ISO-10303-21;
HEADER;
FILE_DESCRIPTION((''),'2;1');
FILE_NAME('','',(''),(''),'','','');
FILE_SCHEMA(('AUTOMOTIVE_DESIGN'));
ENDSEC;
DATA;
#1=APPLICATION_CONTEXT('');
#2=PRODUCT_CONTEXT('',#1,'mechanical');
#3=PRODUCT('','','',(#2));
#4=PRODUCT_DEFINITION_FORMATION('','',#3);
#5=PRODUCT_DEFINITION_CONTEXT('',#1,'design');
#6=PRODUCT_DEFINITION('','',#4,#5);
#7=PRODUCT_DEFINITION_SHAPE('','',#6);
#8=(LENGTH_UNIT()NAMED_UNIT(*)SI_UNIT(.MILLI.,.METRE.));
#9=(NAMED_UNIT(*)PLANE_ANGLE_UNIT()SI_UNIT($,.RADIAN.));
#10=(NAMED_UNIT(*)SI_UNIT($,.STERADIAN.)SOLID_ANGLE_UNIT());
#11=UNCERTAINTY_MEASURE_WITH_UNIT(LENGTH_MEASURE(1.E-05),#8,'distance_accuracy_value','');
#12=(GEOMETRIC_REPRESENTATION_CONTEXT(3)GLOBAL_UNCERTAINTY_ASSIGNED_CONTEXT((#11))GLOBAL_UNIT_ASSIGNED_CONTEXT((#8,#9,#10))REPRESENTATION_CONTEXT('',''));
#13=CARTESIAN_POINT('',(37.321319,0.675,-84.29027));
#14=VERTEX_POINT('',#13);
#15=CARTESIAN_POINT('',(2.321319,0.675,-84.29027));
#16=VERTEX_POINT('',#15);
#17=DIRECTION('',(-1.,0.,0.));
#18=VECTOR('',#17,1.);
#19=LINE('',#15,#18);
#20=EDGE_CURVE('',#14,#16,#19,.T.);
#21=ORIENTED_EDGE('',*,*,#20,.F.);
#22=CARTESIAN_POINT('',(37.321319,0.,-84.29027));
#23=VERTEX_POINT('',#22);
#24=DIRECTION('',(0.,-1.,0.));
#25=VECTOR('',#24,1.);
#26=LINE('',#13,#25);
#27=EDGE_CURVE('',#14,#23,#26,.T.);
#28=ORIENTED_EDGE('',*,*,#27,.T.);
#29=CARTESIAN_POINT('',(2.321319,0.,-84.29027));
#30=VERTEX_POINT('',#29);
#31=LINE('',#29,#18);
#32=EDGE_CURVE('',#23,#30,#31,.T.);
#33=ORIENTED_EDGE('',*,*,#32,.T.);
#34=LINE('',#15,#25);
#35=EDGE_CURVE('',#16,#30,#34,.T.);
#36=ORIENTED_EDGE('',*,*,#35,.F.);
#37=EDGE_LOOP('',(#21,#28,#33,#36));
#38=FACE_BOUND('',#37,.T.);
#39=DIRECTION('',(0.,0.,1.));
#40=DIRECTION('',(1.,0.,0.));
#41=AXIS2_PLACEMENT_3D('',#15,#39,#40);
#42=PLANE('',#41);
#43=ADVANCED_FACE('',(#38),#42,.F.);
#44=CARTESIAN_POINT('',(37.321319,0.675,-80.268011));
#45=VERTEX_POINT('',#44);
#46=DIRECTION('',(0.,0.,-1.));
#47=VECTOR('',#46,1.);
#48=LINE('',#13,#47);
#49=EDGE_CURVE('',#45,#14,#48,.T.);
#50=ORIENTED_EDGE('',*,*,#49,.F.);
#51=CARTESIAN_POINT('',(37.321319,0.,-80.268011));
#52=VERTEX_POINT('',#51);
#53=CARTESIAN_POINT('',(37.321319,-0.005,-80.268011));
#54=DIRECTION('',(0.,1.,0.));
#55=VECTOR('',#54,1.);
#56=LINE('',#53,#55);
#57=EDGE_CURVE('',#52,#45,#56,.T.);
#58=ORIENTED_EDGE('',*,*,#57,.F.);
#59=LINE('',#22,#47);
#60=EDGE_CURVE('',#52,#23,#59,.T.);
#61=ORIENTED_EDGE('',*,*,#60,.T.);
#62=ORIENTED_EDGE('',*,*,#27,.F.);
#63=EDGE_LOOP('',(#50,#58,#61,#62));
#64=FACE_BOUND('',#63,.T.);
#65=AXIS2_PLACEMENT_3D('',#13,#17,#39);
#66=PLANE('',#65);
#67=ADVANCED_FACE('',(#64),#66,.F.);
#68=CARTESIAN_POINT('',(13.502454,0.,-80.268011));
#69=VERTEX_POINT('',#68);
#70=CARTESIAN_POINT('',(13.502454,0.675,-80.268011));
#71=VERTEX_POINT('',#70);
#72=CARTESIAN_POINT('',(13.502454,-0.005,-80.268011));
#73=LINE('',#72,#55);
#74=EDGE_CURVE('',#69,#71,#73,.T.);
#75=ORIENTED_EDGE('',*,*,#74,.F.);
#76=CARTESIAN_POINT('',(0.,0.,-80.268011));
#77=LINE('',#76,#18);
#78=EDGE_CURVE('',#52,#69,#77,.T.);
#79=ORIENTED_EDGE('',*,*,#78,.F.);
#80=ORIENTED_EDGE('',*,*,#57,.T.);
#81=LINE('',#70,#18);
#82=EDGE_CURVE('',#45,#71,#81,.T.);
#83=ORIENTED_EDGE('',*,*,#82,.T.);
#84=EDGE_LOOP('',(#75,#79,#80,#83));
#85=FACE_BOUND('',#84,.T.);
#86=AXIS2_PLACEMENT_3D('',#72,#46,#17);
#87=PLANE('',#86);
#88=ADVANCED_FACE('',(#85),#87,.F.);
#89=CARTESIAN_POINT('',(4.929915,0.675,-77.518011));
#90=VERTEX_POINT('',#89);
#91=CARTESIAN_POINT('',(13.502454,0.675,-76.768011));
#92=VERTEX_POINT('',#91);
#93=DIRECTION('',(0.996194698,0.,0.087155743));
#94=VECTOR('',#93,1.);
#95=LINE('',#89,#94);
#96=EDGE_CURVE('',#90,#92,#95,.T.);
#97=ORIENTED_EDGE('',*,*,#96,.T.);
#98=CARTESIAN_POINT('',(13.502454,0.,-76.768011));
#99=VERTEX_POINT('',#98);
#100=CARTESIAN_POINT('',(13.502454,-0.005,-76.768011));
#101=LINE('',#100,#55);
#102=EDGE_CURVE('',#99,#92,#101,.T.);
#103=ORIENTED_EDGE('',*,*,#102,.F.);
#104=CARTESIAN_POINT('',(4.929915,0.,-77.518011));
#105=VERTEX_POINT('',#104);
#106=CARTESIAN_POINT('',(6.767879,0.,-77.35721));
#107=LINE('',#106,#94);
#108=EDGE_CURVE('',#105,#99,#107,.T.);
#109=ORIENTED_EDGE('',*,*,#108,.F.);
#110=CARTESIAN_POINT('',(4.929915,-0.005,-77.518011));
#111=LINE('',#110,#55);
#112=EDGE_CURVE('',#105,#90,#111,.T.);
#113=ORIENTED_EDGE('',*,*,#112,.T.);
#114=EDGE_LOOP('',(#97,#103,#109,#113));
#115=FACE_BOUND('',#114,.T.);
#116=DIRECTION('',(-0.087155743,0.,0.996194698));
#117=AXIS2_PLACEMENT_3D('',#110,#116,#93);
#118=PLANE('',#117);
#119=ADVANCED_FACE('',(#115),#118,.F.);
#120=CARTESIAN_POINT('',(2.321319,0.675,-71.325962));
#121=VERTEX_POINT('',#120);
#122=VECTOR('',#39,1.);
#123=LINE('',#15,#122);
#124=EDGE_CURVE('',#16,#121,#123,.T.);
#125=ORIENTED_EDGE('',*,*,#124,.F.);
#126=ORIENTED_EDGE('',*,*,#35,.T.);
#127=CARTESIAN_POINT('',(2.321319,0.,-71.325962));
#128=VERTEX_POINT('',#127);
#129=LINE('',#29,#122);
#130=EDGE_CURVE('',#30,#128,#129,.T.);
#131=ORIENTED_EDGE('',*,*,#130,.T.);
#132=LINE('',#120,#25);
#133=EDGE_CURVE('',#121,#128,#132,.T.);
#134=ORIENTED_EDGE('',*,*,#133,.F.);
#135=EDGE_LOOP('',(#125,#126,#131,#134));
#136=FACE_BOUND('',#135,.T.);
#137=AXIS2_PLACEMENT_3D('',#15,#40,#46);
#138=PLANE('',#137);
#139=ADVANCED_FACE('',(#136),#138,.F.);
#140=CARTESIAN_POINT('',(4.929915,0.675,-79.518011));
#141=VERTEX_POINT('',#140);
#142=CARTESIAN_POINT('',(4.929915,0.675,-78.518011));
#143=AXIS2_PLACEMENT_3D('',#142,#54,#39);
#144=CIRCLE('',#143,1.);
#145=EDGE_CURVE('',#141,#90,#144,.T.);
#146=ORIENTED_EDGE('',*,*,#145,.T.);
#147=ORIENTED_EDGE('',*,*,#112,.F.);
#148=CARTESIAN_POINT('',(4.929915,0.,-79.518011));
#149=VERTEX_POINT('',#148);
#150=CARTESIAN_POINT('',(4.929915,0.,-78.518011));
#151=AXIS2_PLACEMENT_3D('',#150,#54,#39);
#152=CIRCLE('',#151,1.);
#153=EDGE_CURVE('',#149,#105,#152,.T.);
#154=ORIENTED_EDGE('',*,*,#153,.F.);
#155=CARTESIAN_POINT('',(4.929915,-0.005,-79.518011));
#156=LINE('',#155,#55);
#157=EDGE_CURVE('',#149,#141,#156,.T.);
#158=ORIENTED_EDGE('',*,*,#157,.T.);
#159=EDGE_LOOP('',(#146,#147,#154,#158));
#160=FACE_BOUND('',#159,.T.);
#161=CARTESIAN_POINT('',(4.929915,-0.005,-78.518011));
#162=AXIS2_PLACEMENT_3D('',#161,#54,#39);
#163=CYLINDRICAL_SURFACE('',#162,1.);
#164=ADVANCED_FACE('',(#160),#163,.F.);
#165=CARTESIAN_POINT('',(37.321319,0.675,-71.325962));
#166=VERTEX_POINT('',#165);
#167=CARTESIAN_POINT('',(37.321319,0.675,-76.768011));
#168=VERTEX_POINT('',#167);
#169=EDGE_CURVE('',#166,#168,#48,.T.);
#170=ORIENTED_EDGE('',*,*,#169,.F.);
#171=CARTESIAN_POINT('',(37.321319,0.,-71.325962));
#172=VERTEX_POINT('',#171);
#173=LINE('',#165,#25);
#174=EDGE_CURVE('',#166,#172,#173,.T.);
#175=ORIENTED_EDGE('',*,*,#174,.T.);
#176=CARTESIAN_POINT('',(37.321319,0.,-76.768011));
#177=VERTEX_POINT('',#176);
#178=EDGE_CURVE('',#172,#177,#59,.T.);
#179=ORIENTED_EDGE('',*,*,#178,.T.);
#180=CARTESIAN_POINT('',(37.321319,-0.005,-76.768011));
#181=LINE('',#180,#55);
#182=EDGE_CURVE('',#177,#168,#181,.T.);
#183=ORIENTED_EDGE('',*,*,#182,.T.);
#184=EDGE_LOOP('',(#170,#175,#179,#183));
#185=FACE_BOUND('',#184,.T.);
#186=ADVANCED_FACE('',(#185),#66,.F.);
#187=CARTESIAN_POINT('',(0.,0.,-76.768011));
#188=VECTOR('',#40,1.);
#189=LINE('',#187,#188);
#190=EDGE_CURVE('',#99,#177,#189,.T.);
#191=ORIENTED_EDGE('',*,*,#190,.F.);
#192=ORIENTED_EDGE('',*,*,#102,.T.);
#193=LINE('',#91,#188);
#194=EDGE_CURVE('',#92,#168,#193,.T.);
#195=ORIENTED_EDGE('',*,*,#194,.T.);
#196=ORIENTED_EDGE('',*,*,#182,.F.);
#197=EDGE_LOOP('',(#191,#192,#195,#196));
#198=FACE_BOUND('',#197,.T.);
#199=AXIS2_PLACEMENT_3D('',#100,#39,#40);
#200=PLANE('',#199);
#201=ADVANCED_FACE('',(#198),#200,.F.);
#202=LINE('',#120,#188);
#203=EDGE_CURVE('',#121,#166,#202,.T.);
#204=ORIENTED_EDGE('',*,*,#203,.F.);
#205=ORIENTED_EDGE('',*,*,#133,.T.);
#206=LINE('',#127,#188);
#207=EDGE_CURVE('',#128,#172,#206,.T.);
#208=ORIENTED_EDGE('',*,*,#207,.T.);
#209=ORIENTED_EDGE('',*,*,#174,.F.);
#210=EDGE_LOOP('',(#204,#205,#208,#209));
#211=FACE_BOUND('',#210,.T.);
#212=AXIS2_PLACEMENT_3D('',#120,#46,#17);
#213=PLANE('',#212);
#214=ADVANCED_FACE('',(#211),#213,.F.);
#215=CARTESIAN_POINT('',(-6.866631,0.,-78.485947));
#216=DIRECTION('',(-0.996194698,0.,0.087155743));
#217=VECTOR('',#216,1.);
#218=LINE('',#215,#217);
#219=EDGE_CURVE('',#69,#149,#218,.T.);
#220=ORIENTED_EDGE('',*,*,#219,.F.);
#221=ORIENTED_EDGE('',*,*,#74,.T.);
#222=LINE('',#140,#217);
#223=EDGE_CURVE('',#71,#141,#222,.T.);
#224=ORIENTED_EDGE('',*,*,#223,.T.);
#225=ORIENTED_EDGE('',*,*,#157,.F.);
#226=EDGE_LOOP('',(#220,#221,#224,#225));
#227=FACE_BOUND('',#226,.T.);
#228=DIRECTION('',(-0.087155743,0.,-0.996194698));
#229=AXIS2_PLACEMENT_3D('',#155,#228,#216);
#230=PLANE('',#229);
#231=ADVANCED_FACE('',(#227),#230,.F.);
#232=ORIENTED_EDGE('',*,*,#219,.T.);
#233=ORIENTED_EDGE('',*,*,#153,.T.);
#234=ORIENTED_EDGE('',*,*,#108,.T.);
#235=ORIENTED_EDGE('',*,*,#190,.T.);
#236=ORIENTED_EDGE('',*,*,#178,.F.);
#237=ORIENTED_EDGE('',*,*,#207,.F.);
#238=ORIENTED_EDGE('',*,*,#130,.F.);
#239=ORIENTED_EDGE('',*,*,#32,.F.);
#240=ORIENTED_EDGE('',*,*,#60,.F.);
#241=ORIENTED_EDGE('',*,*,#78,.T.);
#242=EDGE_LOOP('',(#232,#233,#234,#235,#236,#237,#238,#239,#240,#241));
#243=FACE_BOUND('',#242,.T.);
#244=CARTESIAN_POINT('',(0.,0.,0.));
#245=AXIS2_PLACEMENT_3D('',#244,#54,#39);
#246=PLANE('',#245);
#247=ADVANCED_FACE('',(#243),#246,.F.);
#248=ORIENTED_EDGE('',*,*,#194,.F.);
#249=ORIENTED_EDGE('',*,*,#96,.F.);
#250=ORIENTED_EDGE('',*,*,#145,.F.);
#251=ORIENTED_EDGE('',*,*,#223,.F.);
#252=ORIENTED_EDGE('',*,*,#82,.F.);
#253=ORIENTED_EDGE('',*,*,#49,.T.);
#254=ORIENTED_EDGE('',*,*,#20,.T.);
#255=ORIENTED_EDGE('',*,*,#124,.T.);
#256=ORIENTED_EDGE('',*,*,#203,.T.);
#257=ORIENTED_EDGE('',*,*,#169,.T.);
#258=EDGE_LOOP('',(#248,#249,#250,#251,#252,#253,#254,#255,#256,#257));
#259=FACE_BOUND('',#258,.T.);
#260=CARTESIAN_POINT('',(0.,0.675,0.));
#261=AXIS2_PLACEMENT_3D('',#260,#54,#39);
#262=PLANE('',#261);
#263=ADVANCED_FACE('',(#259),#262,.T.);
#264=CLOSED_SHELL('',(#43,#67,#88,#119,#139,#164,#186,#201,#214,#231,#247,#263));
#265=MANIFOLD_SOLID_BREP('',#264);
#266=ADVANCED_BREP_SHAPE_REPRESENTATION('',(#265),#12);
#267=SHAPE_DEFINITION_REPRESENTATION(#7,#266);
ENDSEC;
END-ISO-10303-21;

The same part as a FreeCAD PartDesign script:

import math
import FreeCAD as App
import Part
import Sketcher
Q = App.Units.Quantity


def add_polygon(sketch, points):
    """Adds a closed chain of lines whose ends are joined by coincident constraints."""
    first, n = sketch.GeometryCount, len(points)
    for a, b in zip(points, points[1:] + points[:1]):
        sketch.addGeometry(Part.LineSegment(App.Vector(*a, 0), App.Vector(*b, 0)), False)
    for i in range(n):
        sketch.addConstraint(Sketcher.Constraint("Coincident", first + i, 2, first + (i + 1) % n, 1))

doc = App.newDocument("Part")
body = doc.addObject("PartDesign::Body", "Body")

sketch1 = doc.addObject("Sketcher::SketchObject", "Sketch")
body.addObject(sketch1)
sketch1.AttachmentSupport = (doc.XZ_Plane, [""])
sketch1.MapMode = "FlatFace"
add_polygon(sketch1, [(2.321319, -84.29027), (2.321319, -71.325962), (37.321319, -71.325962), (37.321319, -84.29027)])
sketch1.addConstraint(Sketcher.Constraint("Vertical", 0))
sketch1.addConstraint(Sketcher.Constraint("Horizontal", 1))
sketch1.addConstraint(Sketcher.Constraint("Vertical", 2))
sketch1.addConstraint(Sketcher.Constraint("Horizontal", 3))
sketch1.addConstraint(Sketcher.Constraint("DistanceX", 1, 1, 1, 2, Q("35 mm")))
sketch1.addConstraint(Sketcher.Constraint("DistanceY", 0, 1, 0, 2, Q("12.964308 mm")))
sketch1.addConstraint(Sketcher.Constraint("DistanceX", -1, 1, 0, 2, Q("2.321319 mm")))
sketch1.addConstraint(Sketcher.Constraint("DistanceY", 2, 2, -1, 1, Q("84.29027 mm")))
pad1 = doc.addObject("PartDesign::Pad", "Pad")
body.addObject(pad1)
pad1.Profile = sketch1
pad1.Length = 0.675
pad1.Reversed = True

sketch2 = doc.addObject("Sketcher::SketchObject", "Sketch001")
body.addObject(sketch2)
sketch2.AttachmentSupport = (doc.XZ_Plane, [""])
sketch2.MapMode = "FlatFace"
sketch2.AttachmentOffset = App.Placement(App.Vector(0, 0, -0.675), App.Rotation())
sketch2.addGeometry(Part.LineSegment(App.Vector(13.502454, -76.768011, 0), App.Vector(37.321319, -76.768011, 0)), False)
sketch2.addGeometry(Part.LineSegment(App.Vector(37.321319, -76.768011, 0), App.Vector(37.321319, -80.268011, 0)), False)
sketch2.addGeometry(Part.LineSegment(App.Vector(37.321319, -80.268011, 0), App.Vector(13.502454, -80.268011, 0)), False)
sketch2.addGeometry(Part.LineSegment(App.Vector(13.502454, -80.268011, 0), App.Vector(4.929915, -79.518011, 0)), False)
sketch2.addGeometry(Part.ArcOfCircle(Part.Circle(App.Vector(4.929915, -78.518011, 0), App.Vector(0, 0, 1), 1), math.radians(90), math.radians(270)), False)
sketch2.addGeometry(Part.LineSegment(App.Vector(4.929915, -77.518011, 0), App.Vector(13.502454, -76.768011, 0)), False)
sketch2.addConstraint(Sketcher.Constraint("Coincident", 0, 2, 1, 1))
sketch2.addConstraint(Sketcher.Constraint("Coincident", 1, 2, 2, 1))
sketch2.addConstraint(Sketcher.Constraint("Coincident", 2, 2, 3, 1))
sketch2.addConstraint(Sketcher.Constraint("Coincident", 3, 2, 4, 2))
sketch2.addConstraint(Sketcher.Constraint("Coincident", 4, 1, 5, 1))
sketch2.addConstraint(Sketcher.Constraint("Coincident", 5, 2, 0, 1))
sketch2.addConstraint(Sketcher.Constraint("Horizontal", 0))
sketch2.addConstraint(Sketcher.Constraint("Vertical", 1))
sketch2.addConstraint(Sketcher.Constraint("Horizontal", 2))
sketch2.addConstraint(Sketcher.Constraint("Vertical", 4, 3, 3, 2))
sketch2.addConstraint(Sketcher.Constraint("Vertical", 3, 2, 4, 1))
sketch2.addConstraint(Sketcher.Constraint("Vertical", 2, 2, 5, 2))
sketch2.addConstraint(Sketcher.Constraint("Equal", 3, 5))
sketch2.addConstraint(Sketcher.Constraint("Radius", 4, Q("1 mm")))
sketch2.addConstraint(Sketcher.Constraint("Angle", 3, Q("175 deg")))
sketch2.addConstraint(Sketcher.Constraint("DistanceY", 1, 2, 1, 1, Q("3.5 mm")))
sketch2.addConstraint(Sketcher.Constraint("DistanceX", 0, 1, 0, 2, Q("23.818865 mm")))
sketch2.addConstraint(Sketcher.Constraint("DistanceY", 4, 3, -1, 1, Q("78.518011 mm")))
sketch2.addConstraint(Sketcher.Constraint("DistanceX", -1, 1, 0, 2, Q("37.321319 mm")))
pocket1 = doc.addObject("PartDesign::Pocket", "Pocket")
body.addObject(pocket1)
pocket1.Profile = sketch2
pocket1.Length = 0.68
pocket1.Reversed = True

doc.recompute()
